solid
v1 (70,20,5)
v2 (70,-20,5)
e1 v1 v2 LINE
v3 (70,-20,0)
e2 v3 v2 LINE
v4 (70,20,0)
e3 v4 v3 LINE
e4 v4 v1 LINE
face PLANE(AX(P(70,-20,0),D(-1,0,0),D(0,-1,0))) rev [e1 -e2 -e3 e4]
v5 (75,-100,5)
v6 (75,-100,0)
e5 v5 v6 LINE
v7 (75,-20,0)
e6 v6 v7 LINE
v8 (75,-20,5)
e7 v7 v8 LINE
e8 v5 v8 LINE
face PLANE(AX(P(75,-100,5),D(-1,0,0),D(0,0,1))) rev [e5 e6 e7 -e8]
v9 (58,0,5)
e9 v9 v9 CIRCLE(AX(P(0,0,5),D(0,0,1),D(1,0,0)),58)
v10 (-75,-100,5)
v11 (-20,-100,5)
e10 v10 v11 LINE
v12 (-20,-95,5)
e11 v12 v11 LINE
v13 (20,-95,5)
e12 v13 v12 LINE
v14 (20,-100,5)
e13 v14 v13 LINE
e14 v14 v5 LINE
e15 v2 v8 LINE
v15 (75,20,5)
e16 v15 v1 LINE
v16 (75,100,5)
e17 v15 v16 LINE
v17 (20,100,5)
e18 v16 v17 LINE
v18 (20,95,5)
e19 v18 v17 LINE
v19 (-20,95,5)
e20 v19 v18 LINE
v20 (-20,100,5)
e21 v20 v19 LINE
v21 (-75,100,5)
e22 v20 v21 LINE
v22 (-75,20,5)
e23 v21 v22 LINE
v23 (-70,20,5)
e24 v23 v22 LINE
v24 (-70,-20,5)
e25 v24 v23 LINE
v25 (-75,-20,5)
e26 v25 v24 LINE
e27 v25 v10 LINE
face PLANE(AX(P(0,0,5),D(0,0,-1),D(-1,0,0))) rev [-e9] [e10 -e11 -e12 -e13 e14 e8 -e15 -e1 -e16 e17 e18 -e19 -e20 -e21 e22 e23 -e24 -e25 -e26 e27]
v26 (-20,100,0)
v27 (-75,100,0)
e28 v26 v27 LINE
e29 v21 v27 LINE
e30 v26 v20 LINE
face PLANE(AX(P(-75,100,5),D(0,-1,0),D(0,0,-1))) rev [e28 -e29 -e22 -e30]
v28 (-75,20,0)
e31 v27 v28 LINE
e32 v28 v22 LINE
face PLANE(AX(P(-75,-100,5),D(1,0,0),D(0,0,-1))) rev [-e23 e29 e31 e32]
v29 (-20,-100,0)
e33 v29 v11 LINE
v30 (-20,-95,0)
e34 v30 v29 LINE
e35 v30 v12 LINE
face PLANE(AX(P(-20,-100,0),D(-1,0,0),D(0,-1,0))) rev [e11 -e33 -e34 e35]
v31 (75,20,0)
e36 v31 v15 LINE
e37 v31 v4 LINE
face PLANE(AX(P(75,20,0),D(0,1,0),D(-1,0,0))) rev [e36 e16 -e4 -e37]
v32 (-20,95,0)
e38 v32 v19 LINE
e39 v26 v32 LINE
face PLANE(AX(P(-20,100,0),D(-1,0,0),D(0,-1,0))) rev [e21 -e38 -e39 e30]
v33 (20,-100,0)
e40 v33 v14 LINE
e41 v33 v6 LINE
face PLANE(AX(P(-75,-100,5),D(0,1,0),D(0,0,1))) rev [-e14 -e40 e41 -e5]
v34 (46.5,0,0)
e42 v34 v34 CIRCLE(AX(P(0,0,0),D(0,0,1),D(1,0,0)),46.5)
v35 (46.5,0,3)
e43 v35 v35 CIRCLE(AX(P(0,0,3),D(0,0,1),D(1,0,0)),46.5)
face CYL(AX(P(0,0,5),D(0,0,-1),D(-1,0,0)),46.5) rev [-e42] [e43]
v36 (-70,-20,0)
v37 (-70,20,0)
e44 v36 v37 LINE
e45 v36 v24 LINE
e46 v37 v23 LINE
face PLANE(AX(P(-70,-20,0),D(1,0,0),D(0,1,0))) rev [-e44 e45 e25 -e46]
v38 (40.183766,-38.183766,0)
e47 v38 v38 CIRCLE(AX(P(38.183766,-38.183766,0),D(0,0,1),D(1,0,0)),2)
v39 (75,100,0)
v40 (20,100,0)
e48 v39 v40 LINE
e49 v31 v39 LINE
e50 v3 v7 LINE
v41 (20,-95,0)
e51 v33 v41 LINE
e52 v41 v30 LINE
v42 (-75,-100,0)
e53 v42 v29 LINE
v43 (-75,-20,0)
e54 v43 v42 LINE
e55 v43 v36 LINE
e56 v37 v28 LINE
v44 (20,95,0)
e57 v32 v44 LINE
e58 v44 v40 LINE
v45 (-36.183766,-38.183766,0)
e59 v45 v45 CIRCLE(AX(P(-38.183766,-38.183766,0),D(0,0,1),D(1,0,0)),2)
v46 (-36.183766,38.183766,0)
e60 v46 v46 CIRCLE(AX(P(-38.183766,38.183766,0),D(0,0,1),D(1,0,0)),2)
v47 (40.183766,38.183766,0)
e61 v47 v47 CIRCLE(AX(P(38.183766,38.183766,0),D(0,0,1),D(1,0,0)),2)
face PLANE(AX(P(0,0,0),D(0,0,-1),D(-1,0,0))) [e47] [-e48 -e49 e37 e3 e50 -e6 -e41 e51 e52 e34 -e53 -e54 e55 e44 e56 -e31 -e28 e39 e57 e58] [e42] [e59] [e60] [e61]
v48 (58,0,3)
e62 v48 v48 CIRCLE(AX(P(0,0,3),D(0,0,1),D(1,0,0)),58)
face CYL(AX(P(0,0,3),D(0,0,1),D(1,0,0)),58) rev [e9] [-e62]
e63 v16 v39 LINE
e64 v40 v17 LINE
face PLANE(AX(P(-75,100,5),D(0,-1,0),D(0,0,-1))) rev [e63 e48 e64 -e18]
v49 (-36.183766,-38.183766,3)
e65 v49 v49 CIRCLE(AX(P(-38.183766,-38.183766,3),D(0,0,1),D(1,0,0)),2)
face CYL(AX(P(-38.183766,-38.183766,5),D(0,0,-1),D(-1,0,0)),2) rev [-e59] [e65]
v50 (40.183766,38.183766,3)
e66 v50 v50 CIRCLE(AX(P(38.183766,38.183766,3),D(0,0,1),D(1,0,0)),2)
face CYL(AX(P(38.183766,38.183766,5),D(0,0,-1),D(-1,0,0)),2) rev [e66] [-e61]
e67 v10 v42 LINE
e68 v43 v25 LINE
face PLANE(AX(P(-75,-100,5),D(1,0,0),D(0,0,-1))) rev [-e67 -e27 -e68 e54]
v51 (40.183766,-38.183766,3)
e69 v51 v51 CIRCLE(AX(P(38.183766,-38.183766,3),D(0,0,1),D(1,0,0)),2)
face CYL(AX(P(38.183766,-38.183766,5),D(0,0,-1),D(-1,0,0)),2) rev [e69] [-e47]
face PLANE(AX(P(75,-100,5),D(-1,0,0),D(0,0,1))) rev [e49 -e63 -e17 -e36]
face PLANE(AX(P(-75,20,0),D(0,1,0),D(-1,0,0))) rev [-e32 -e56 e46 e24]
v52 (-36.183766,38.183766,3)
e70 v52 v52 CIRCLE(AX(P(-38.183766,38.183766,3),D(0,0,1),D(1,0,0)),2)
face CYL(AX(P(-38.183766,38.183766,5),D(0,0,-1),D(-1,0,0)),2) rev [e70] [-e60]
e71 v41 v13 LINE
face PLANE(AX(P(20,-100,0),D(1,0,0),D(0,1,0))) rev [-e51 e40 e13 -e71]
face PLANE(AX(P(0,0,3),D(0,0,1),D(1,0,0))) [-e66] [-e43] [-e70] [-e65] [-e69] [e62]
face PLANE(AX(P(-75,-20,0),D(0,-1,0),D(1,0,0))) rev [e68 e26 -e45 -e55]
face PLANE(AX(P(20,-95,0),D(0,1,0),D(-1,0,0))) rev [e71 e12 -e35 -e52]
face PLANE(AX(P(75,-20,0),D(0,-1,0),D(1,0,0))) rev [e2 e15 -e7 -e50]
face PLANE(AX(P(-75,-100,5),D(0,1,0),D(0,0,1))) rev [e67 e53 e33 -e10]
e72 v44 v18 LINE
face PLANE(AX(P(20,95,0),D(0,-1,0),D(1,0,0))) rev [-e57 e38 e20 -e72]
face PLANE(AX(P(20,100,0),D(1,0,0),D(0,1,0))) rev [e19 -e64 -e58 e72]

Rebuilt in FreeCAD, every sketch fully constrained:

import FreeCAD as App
import Part
import Sketcher

V = App.Vector
Q = App.Units.Quantity

doc = App.newDocument("Part")
body = doc.addObject("PartDesign::Body", "Body")

sketch1 = body.newObject("Sketcher::SketchObject", "Sketch")
sketch1.AttachmentSupport = (doc.getObject("XY_Plane"), [""])
sketch1.MapMode = "FlatFace"
sketch1.addGeometry([
    Part.LineSegment(V(-75, 100, 0), V(-75, -100, 0)),
    Part.LineSegment(V(-75, -100, 0), V(75, -100, 0)),
    Part.LineSegment(V(75, -100, 0), V(75, 100, 0)),
    Part.LineSegment(V(75, 100, 0), V(-75, 100, 0)),
    Part.Circle(V(-38.2, -38.2, 0), V(0, 0, 1), 2),
    Part.Circle(V(38.2, -38.2, 0), V(0, 0, 1), 2),
    Part.Circle(V(-38.2, 38.2, 0), V(0, 0, 1), 2),
    Part.Circle(V(0, 0, 0), V(0, 0, 1), 46.5),
    Part.Circle(V(38.2, 38.2, 0), V(0, 0, 1), 2),
], False)
sketch1.addConstraint([
    Sketcher.Constraint("Coincident", 0, 2, 1, 1),
    Sketcher.Constraint("Coincident", 1, 2, 2, 1),
    Sketcher.Constraint("Coincident", 2, 2, 3, 1),
    Sketcher.Constraint("Coincident", 3, 2, 0, 1),
    Sketcher.Constraint("Vertical", 0),
    Sketcher.Constraint("Horizontal", 1),
    Sketcher.Constraint("Vertical", 2),
    Sketcher.Constraint("Horizontal", 3),
    Sketcher.Constraint("Coincident", 7, 3, -1, 1),
    Sketcher.Constraint("Equal", 4, 5),
    Sketcher.Constraint("Equal", 5, 6),
    Sketcher.Constraint("Equal", 6, 8),
    Sketcher.Constraint("Symmetric", 5, 3, 6, 3, -1, 1),
    Sketcher.Constraint("Symmetric", 4, 3, 8, 3, -1, 1),
    Sketcher.Constraint("Symmetric", 0, 2, 2, 2, -1, 1),
    Sketcher.Constraint("Symmetric", 4, 3, 5, 3, -2),
    Sketcher.Constraint("Diameter", 4, Q("4 mm")),
    Sketcher.Constraint("Diameter", 7, Q("93 mm")),
    Sketcher.Constraint("DistanceX", 1, 1, 1, 2, Q("150 mm")),
    Sketcher.Constraint("DistanceY", 0, 2, 0, 1, Q("200 mm")),
    Sketcher.Constraint("DistanceX", 4, 3, -1, 1, Q("38.183766 mm")),
    Sketcher.Constraint("DistanceY", 4, 3, -1, 1, Q("38.183766 mm")),
])
pad1 = body.newObject("PartDesign::Pad", "Pad")
pad1.Profile = sketch1
pad1.Length = 5

sketch2 = body.newObject("Sketcher::SketchObject", "Sketch001")
sketch2.AttachmentSupport = (doc.getObject("XY_Plane"), [""])
sketch2.MapMode = "FlatFace"
sketch2.AttachmentOffset = App.Placement(V(0, 0, 5), App.Rotation())
sketch2.addGeometry(Part.Circle(V(0, 0, 0), V(0, 0, 1), 58), False)
sketch2.addConstraint([
    Sketcher.Constraint("Coincident", 0, 3, -1, 1),
    Sketcher.Constraint("Diameter", 0, Q("116 mm")),
])
pocket1 = body.newObject("PartDesign::Pocket", "Pocket")
pocket1.Profile = sketch2
pocket1.Length = 2

sketch3 = body.newObject("Sketcher::SketchObject", "Sketch002")
sketch3.AttachmentSupport = (doc.getObject("XY_Plane"), [""])
sketch3.MapMode = "FlatFace"
sketch3.addGeometry([
    Part.LineSegment(V(-20, 100, 0), V(-20, 95, 0)),
    Part.LineSegment(V(-20, 95, 0), V(20, 95, 0)),
    Part.LineSegment(V(20, 95, 0), V(20, 100, 0)),
    Part.LineSegment(V(20, 100, 0), V(-20, 100, 0)),
    Part.LineSegment(V(-20, -95, 0), V(-20, -100, 0)),
    Part.LineSegment(V(-20, -100, 0), V(20, -100, 0)),
    Part.LineSegment(V(20, -100, 0), V(20, -95, 0)),
    Part.LineSegment(V(20, -95, 0), V(-20, -95, 0)),
    Part.LineSegment(V(-75, 20, 0), V(-75, -20, 0)),
    Part.LineSegment(V(-75, -20, 0), V(-70, -20, 0)),
    Part.LineSegment(V(-70, -20, 0), V(-70, 20, 0)),
    Part.LineSegment(V(-70, 20, 0), V(-75, 20, 0)),
    Part.LineSegment(V(70, 20, 0), V(70, -20, 0)),
    Part.LineSegment(V(70, -20, 0), V(75, -20, 0)),
    Part.LineSegment(V(75, -20, 0), V(75, 20, 0)),
    Part.LineSegment(V(75, 20, 0), V(70, 20, 0)),
], False)
sketch3.addConstraint([
    Sketcher.Constraint("Coincident", 0, 2, 1, 1),
    Sketcher.Constraint("Coincident", 1, 2, 2, 1),
    Sketcher.Constraint("Coincident", 2, 2, 3, 1),
    Sketcher.Constraint("Coincident", 3, 2, 0, 1),
    Sketcher.Constraint("Coincident", 4, 2, 5, 1),
    Sketcher.Constraint("Coincident", 5, 2, 6, 1),
    Sketcher.Constraint("Coincident", 6, 2, 7, 1),
    Sketcher.Constraint("Coincident", 7, 2, 4, 1),
    Sketcher.Constraint("Coincident", 8, 2, 9, 1),
    Sketcher.Constraint("Coincident", 9, 2, 10, 1),
    Sketcher.Constraint("Coincident", 10, 2, 11, 1),
    Sketcher.Constraint("Coincident", 11, 2, 8, 1),
    Sketcher.Constraint("Coincident", 12, 2, 13, 1),
    Sketcher.Constraint("Coincident", 13, 2, 14, 1),
    Sketcher.Constraint("Coincident", 14, 2, 15, 1),
    Sketcher.Constraint("Coincident", 15, 2, 12, 1),
    Sketcher.Constraint("Vertical", 0),
    Sketcher.Constraint("Horizontal", 1),
    Sketcher.Constraint("Vertical", 2),
    Sketcher.Constraint("Horizontal", 3),
    Sketcher.Constraint("Vertical", 4),
    Sketcher.Constraint("Horizontal", 5),
    Sketcher.Constraint("Vertical", 6),
    Sketcher.Constraint("Horizontal", 7),
    Sketcher.Constraint("Vertical", 8),
    Sketcher.Constraint("Horizontal", 9),
    Sketcher.Constraint("Vertical", 10),
    Sketcher.Constraint("Horizontal", 11),
    Sketcher.Constraint("Vertical", 12),
    Sketcher.Constraint("Horizontal", 13),
    Sketcher.Constraint("Vertical", 14),
    Sketcher.Constraint("Horizontal", 15),
    Sketcher.Constraint("Symmetric", 2, 2, 4, 2, -1, 1),
    Sketcher.Constraint("Symmetric", 0, 2, 6, 2, -1, 1),
    Sketcher.Constraint("Symmetric", 10, 2, 12, 2, -1, 1),
    Sketcher.Constraint("Symmetric", 8, 2, 14, 2, -1, 1),
    Sketcher.Constraint("Horizontal", 9, 2, 12, 2),
    Sketcher.Constraint("Vertical", 3, 2, 4, 2),
    Sketcher.Constraint("Equal", 15, 0),
    Sketcher.Constraint("Equal", 7, 8),
    Sketcher.Constraint("DistanceX", 1, 1, 1, 2, Q("40 mm")),
    Sketcher.Constraint("DistanceX", 9, 1, 9, 2, Q("5 mm")),
    Sketcher.Constraint("DistanceY", -1, 1, 0, 2, Q("95 mm")),
    Sketcher.Constraint("DistanceX", 8, 2, -1, 1, Q("75 mm")),
])
pocket2 = body.newObject("PartDesign::Pocket", "Pocket001")
pocket2.Profile = sketch3
pocket2.Length = 5
pocket2.Reversed = True

doc.recompute()
